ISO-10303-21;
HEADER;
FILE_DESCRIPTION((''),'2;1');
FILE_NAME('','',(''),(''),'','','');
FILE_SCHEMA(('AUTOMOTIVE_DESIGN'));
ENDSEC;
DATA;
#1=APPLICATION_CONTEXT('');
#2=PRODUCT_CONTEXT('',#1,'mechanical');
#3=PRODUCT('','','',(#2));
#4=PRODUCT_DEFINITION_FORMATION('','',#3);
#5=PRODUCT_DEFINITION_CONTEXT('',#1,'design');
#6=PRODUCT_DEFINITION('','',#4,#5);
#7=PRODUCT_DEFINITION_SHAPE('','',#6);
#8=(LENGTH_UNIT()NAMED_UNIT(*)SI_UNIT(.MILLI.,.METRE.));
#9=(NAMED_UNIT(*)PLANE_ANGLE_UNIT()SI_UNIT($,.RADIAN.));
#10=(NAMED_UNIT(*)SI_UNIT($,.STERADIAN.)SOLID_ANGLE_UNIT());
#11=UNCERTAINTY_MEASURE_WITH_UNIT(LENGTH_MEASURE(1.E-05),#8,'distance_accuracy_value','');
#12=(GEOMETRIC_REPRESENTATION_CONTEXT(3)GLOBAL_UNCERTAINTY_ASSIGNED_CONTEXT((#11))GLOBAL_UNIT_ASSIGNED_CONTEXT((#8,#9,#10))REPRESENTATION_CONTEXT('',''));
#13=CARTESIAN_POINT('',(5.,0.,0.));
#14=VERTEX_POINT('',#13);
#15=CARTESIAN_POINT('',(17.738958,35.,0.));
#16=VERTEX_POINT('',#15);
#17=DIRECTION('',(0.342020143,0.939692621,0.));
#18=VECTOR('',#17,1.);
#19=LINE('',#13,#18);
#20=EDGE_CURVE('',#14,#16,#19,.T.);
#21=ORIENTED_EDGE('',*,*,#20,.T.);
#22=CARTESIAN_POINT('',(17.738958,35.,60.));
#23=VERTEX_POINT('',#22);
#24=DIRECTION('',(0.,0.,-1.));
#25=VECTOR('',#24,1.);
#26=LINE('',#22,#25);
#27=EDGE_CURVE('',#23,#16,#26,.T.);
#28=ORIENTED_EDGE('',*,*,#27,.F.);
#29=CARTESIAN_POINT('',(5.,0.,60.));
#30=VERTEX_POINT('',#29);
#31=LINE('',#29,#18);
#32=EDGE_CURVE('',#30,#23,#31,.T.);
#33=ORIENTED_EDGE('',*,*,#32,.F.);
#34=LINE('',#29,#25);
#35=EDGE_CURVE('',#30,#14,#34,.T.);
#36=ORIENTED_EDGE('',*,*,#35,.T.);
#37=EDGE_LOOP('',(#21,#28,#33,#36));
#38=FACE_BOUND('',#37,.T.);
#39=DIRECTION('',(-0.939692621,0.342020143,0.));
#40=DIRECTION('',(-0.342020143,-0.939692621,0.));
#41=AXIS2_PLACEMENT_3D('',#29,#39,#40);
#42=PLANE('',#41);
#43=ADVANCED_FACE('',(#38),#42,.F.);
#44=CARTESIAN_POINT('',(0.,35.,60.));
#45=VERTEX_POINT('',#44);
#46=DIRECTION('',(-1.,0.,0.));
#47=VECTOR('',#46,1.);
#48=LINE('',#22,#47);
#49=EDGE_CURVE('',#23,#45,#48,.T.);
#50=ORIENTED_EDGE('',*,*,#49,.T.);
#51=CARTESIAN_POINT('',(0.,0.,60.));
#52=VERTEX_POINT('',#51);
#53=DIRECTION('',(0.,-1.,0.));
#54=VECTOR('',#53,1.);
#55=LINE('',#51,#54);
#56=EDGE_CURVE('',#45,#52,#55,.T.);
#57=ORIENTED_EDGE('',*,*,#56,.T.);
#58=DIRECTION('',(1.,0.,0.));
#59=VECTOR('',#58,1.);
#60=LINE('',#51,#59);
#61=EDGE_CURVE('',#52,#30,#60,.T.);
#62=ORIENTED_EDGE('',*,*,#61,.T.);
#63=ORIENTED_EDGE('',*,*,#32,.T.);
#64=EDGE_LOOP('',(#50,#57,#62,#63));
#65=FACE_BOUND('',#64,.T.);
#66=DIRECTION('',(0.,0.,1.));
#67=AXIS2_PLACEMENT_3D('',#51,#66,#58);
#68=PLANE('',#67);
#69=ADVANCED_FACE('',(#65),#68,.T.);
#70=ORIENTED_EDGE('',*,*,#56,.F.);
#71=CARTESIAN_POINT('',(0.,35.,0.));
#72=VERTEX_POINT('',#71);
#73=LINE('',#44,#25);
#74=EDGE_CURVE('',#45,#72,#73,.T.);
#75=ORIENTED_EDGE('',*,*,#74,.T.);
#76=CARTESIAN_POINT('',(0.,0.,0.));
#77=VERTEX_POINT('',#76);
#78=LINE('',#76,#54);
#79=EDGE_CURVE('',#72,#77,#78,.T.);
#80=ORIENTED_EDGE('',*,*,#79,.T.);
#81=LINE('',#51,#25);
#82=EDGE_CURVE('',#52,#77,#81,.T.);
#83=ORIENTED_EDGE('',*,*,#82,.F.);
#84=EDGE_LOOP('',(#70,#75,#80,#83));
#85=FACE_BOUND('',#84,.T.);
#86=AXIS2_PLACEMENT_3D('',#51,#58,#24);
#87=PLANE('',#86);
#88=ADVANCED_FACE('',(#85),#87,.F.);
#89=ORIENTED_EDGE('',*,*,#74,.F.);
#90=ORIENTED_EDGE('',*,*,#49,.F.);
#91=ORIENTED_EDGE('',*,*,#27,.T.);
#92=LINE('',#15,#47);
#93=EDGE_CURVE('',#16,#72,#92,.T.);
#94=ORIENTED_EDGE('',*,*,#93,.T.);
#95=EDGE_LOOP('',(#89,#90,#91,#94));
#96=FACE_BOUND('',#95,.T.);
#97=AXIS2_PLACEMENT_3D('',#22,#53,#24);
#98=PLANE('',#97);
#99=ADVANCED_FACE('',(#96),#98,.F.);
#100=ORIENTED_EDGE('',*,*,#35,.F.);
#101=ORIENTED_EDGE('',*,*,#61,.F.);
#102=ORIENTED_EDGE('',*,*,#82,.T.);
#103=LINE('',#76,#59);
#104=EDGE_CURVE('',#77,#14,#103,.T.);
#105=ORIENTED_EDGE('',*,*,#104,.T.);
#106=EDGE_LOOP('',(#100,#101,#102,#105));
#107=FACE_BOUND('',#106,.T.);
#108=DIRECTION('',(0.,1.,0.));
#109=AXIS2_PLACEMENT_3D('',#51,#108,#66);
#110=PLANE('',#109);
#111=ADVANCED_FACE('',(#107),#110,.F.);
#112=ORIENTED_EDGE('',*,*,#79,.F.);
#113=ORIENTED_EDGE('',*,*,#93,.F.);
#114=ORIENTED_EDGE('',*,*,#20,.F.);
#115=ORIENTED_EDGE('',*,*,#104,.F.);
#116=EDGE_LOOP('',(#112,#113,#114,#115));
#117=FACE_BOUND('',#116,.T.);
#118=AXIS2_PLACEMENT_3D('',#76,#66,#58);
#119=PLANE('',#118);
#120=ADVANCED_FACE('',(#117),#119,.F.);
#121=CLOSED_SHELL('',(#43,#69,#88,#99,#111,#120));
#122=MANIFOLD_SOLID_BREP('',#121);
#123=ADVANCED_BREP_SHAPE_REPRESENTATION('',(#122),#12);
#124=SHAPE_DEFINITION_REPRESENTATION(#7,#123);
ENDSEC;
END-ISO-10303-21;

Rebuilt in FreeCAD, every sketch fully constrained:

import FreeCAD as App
import Part
import Sketcher
Q = App.Units.Quantity

doc = App.newDocument("Part")
params = doc.addObject("Spreadsheet::Sheet", "Params")
for row, (alias, value) in enumerate([
    ("sketch1_width", "5 mm"),
    ("sketch1_height", "35 mm"),
    ("pad1_length", "60 mm"),
], start=1):
    params.set(f"A{row}", alias)
    params.set(f"B{row}", "=" + value)
    params.setAlias(f"B{row}", alias)

body = doc.addObject("PartDesign::Body", "Body")

sketch1 = body.newObject("Sketcher::SketchObject", "Sketch")
sketch1.AttachmentSupport = (doc.getObject("XY_Plane"), [""])
sketch1.MapMode = "FlatFace"
sketch1.addGeometry(Part.LineSegment(App.Vector(0, 35, 0), App.Vector(0, 0, 0)), False)
sketch1.addGeometry(Part.LineSegment(App.Vector(0, 0, 0), App.Vector(5, 0, 0)), False)
sketch1.addGeometry(Part.LineSegment(App.Vector(5, 0, 0), App.Vector(18, 35, 0)), False)
sketch1.addGeometry(Part.LineSegment(App.Vector(18, 35, 0), App.Vector(0, 35, 0)), False)
sketch1.addConstraint(Sketcher.Constraint("Coincident", 0, 2, 1, 1))
sketch1.addConstraint(Sketcher.Constraint("Coincident", 1, 2, 2, 1))
sketch1.addConstraint(Sketcher.Constraint("Coincident", 2, 2, 3, 1))
sketch1.addConstraint(Sketcher.Constraint("Coincident", 3, 2, 0, 1))
sketch1.addConstraint(Sketcher.Constraint("Vertical", 0))
sketch1.addConstraint(Sketcher.Constraint("Horizontal", 1))
sketch1.addConstraint(Sketcher.Constraint("Horizontal", 3))
sketch1.addConstraint(Sketcher.Constraint("Coincident", 0, 2, -1, 1))
sketch1.addConstraint(Sketcher.Constraint("DistanceX", 1, 1, 1, 2, Q("5 mm")))
sketch1.addConstraint(Sketcher.Constraint("DistanceY", 0, 2, 0, 1, Q("35 mm")))
sketch1.addConstraint(Sketcher.Constraint("Angle", 2, Q("70 deg")))
sketch1.setExpression("Constraints[8]", "Params.sketch1_width")
sketch1.setExpression("Constraints[9]", "Params.sketch1_height")
pad1 = body.newObject("PartDesign::Pad", "Pad")
pad1.Profile = sketch1
pad1.setExpression("Length", "Params.pad1_length")

doc.recompute()
